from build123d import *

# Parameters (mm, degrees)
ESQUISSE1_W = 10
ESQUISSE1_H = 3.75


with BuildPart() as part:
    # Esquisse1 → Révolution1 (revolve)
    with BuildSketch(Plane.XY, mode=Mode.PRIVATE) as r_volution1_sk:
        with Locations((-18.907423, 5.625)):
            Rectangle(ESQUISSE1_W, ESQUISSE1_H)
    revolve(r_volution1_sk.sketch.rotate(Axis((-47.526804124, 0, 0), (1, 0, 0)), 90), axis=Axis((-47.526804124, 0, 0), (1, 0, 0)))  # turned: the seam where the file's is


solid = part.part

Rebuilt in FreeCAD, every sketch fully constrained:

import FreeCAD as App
import Part
import Sketcher
from FreeCAD import Vector


def add_polygon(sketch, points):
    """Adds a closed chain of lines whose ends are joined by coincident constraints."""
    first, n = sketch.GeometryCount, len(points)
    for a, b in zip(points, points[1:] + points[:1]):
        sketch.addGeometry(Part.LineSegment(App.Vector(*a, 0), App.Vector(*b, 0)), False)
    for i in range(n):
        sketch.addConstraint(Sketcher.Constraint("Coincident", first + i, 2, first + (i + 1) % n, 1))

doc = App.newDocument("Part")
body = doc.addObject("PartDesign::Body", "Body")

# Sketch on XY plane
sketch1 = body.newObject("Sketcher::SketchObject", "Sketch")
sketch1.AttachmentSupport = (doc.getObject("XY_Plane"), [""])
sketch1.MapMode = "FlatFace"
add_polygon(sketch1, [(-23.9, 7.5), (-23.9, 3.8), (-13.9, 3.8), (-13.9, 7.5)])  # lines 0-3
sketch1.addConstraint(Sketcher.Constraint("Vertical", 0))
sketch1.addConstraint(Sketcher.Constraint("Horizontal", 1))
sketch1.addConstraint(Sketcher.Constraint("Vertical", 2))
sketch1.addConstraint(Sketcher.Constraint("Horizontal", 3))
sketch1.addConstraint(Sketcher.Constraint("DistanceX", 1, 1, 1, 2, 10.0))
sketch1.addConstraint(Sketcher.Constraint("DistanceY", 0, 2, 0, 1, 3.75))
sketch1.addConstraint(Sketcher.Constraint("DistanceY", -1, 1, 2, 2, 7.5))
sketch1.addConstraint(Sketcher.Constraint("DistanceX", 0, 2, -1, 1, 23.907423))
revolution = body.newObject("PartDesign::Revolution", "Revolution")
revolution.Profile = sketch1
revolution.ReferenceAxis = (sketch1, ["H_Axis"])
revolution.Angle = 360

doc.recompute()
